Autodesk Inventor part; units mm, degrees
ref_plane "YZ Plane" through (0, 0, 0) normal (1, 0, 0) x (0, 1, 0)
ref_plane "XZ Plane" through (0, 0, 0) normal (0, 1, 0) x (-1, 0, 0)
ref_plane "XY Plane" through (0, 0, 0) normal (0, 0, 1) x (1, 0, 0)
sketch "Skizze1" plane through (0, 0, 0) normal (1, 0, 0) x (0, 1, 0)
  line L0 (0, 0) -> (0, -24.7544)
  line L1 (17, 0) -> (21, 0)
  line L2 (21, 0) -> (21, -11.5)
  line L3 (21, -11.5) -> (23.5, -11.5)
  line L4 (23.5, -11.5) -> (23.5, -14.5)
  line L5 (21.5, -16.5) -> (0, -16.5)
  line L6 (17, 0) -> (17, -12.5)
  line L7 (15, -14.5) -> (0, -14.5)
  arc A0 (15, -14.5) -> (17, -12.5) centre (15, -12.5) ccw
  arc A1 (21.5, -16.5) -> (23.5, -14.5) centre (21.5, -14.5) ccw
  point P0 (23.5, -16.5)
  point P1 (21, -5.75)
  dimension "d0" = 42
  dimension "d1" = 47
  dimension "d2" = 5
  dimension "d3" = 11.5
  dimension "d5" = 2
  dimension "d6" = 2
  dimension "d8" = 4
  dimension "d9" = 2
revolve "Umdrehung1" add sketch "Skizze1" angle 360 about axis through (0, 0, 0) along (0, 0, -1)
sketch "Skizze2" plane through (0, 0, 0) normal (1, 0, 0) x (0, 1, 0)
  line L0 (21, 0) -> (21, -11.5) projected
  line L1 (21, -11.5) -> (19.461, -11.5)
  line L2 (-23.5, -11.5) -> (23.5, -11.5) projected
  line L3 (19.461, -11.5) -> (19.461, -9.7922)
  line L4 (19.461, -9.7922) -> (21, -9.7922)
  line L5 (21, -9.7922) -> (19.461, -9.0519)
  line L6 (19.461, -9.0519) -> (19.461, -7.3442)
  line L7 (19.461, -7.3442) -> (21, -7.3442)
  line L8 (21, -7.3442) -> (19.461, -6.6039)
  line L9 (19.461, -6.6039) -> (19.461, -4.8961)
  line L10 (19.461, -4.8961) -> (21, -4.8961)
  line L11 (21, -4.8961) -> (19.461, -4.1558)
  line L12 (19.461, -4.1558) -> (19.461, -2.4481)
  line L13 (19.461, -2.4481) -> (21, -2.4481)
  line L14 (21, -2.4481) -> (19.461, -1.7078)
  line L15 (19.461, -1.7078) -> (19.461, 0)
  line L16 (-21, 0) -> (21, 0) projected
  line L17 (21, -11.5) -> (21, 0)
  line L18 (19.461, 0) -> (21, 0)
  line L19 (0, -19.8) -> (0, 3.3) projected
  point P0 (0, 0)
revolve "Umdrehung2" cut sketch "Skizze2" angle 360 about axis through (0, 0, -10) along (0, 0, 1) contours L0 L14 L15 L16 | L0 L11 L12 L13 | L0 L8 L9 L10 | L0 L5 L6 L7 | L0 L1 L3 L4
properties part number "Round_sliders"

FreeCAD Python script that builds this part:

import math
import FreeCAD as App
import Part
import Sketcher

doc = App.newDocument("Part")
body = doc.addObject("PartDesign::Body", "Body")

# Sketch on YZ plane
sketch1 = body.newObject("Sketcher::SketchObject", "Sketch")
sketch1.AttachmentSupport = (doc.getObject("YZ_Plane"), [""])
sketch1.MapMode = "FlatFace"
sketch1.addGeometry([
    Part.LineSegment(App.Vector(15, -14.5, 0), App.Vector(0, -14.5, 0)),  # 0
    Part.LineSegment(App.Vector(0, -14.5, 0), App.Vector(0, -16.5, 0)),  # 1
    Part.LineSegment(App.Vector(0, -16.5, 0), App.Vector(21.5, -16.5, 0)),  # 2
    Part.ArcOfCircle(Part.Circle(App.Vector(21.5, -14.5, 0), App.Vector(0, 0, 1), 2), math.radians(-90), math.radians(0)),  # 3
    Part.LineSegment(App.Vector(23.5, -14.5, 0), App.Vector(23.5, -11.5, 0)),  # 4
    Part.LineSegment(App.Vector(23.5, -11.5, 0), App.Vector(21, -11.5, 0)),  # 5
    Part.LineSegment(App.Vector(21, -11.5, 0), App.Vector(21, 0, 0)),  # 6
    Part.LineSegment(App.Vector(21, 0, 0), App.Vector(17, 0, 0)),  # 7
    Part.LineSegment(App.Vector(17, 0, 0), App.Vector(17, -12.5, 0)),  # 8
    Part.ArcOfCircle(Part.Circle(App.Vector(15, -12.5, 0), App.Vector(0, 0, 1), 2), math.radians(-90), math.radians(0)),  # 9
], False)
sketch1.addConstraint([
    Sketcher.Constraint("Coincident", 0, 2, 1, 1),
    Sketcher.Constraint("Coincident", 1, 2, 2, 1),
    Sketcher.Constraint("Tangent", 2, 2, 3, 1),
    Sketcher.Constraint("Tangent", 3, 2, 4, 1),
    Sketcher.Constraint("Coincident", 4, 2, 5, 1),
    Sketcher.Constraint("Coincident", 5, 2, 6, 1),
    Sketcher.Constraint("Coincident", 6, 2, 7, 1),
    Sketcher.Constraint("Coincident", 7, 2, 8, 1),
    Sketcher.Constraint("Tangent", 8, 2, 9, 2),
    Sketcher.Constraint("Tangent", 9, 1, 0, 1),
    Sketcher.Constraint("Horizontal", 0),
    Sketcher.Constraint("Vertical", 1),
    Sketcher.Constraint("Horizontal", 2),
    Sketcher.Constraint("Vertical", 4),
    Sketcher.Constraint("Horizontal", 5),
    Sketcher.Constraint("Vertical", 6),
    Sketcher.Constraint("Horizontal", 7),
    Sketcher.Constraint("Vertical", 8),
    Sketcher.Constraint("Equal", 3, 9),
    Sketcher.Constraint("PointOnObject", 0, 2, -2),
    Sketcher.Constraint("PointOnObject", 6, 2, -1),
    Sketcher.Constraint("Horizontal", 3, 3, 0, 2),
    Sketcher.Constraint("Radius", 3, 2.0),
    Sketcher.Constraint("DistanceX", 7, 2, 7, 1, 4.0),
    Sketcher.Constraint("DistanceY", 6, 1, 6, 2, 11.5),
    Sketcher.Constraint("DistanceY", 2, 2, 4, 2, 5.0),
    Sketcher.Constraint("DistanceX", 0, 2, 0, 1, 15.0),
    Sketcher.Constraint("DistanceX", 2, 1, 2, 2, 21.5),
])
revolution = body.newObject("PartDesign::Revolution", "Revolution")
revolution.Profile = sketch1
revolution.ReferenceAxis = (sketch1, ["V_Axis"])
revolution.Angle = 360

# Sketch on YZ plane
sketch2 = body.newObject("Sketcher::SketchObject", "Sketch001")
sketch2.AttachmentSupport = (doc.getObject("YZ_Plane"), [""])
sketch2.MapMode = "FlatFace"
sketch2.addGeometry([
    Part.LineSegment(App.Vector(21, -2.4481, 0), App.Vector(21, 0, 0)),  # 0
    Part.LineSegment(App.Vector(21, 0, 0), App.Vector(19.461, 0, 0)),  # 1
    Part.LineSegment(App.Vector(19.461, 0, 0), App.Vector(19.461, -1.7078, 0)),  # 2
    Part.LineSegment(App.Vector(19.461, -1.7078, 0), App.Vector(21, -2.4481, 0)),  # 3
    Part.LineSegment(App.Vector(21, -4.8961, 0), App.Vector(21, -2.4481, 0)),  # 4
    Part.LineSegment(App.Vector(21, -2.4481, 0), App.Vector(19.461, -2.4481, 0)),  # 5
    Part.LineSegment(App.Vector(19.461, -2.4481, 0), App.Vector(19.461, -4.1558, 0)),  # 6
    Part.LineSegment(App.Vector(19.461, -4.1558, 0), App.Vector(21, -4.8961, 0)),  # 7
    Part.LineSegment(App.Vector(21, -7.3442, 0), App.Vector(21, -4.8961, 0)),  # 8
    Part.LineSegment(App.Vector(21, -4.8961, 0), App.Vector(19.461, -4.8961, 0)),  # 9
    Part.LineSegment(App.Vector(19.461, -4.8961, 0), App.Vector(19.461, -6.6039, 0)),  # 10
    Part.LineSegment(App.Vector(19.461, -6.6039, 0), App.Vector(21, -7.3442, 0)),  # 11
    Part.LineSegment(App.Vector(21, -9.7922, 0), App.Vector(21, -7.3442, 0)),  # 12
    Part.LineSegment(App.Vector(21, -7.3442, 0), App.Vector(19.461, -7.3442, 0)),  # 13
    Part.LineSegment(App.Vector(19.461, -7.3442, 0), App.Vector(19.461, -9.0519, 0)),  # 14
    Part.LineSegment(App.Vector(19.461, -9.0519, 0), App.Vector(21, -9.7922, 0)),  # 15
    Part.LineSegment(App.Vector(21, -11.5, 0), App.Vector(21, -9.7922, 0)),  # 16
    Part.LineSegment(App.Vector(21, -9.7922, 0), App.Vector(19.461, -9.7922, 0)),  # 17
    Part.LineSegment(App.Vector(19.461, -9.7922, 0), App.Vector(19.461, -11.5, 0)),  # 18
    Part.LineSegment(App.Vector(19.461, -11.5, 0), App.Vector(21, -11.5, 0)),  # 19
], False)
sketch2.addConstraint([
    Sketcher.Constraint("Coincident", 0, 2, 1, 1),
    Sketcher.Constraint("Coincident", 1, 2, 2, 1),
    Sketcher.Constraint("Coincident", 2, 2, 3, 1),
    Sketcher.Constraint("Coincident", 3, 2, 0, 1),
    Sketcher.Constraint("Coincident", 4, 2, 5, 1),
    Sketcher.Constraint("Coincident", 5, 2, 6, 1),
    Sketcher.Constraint("Coincident", 6, 2, 7, 1),
    Sketcher.Constraint("Coincident", 7, 2, 4, 1),
    Sketcher.Constraint("Coincident", 8, 2, 9, 1),
    Sketcher.Constraint("Coincident", 9, 2, 10, 1),
    Sketcher.Constraint("Coincident", 10, 2, 11, 1),
    Sketcher.Constraint("Coincident", 11, 2, 8, 1),
    Sketcher.Constraint("Coincident", 12, 2, 13, 1),
    Sketcher.Constraint("Coincident", 13, 2, 14, 1),
    Sketcher.Constraint("Coincident", 14, 2, 15, 1),
    Sketcher.Constraint("Coincident", 15, 2, 12, 1),
    Sketcher.Constraint("Coincident", 16, 2, 17, 1),
    Sketcher.Constraint("Coincident", 17, 2, 18, 1),
    Sketcher.Constraint("Coincident", 18, 2, 19, 1),
    Sketcher.Constraint("Coincident", 19, 2, 16, 1),
    Sketcher.Constraint("Vertical", 0),
    Sketcher.Constraint("Horizontal", 1),
    Sketcher.Constraint("Vertical", 2),
    Sketcher.Constraint("Vertical", 4),
    Sketcher.Constraint("Horizontal", 5),
    Sketcher.Constraint("Vertical", 6),
    Sketcher.Constraint("Vertical", 8),
    Sketcher.Constraint("Horizontal", 9),
    Sketcher.Constraint("Vertical", 10),
    Sketcher.Constraint("Vertical", 12),
    Sketcher.Constraint("Horizontal", 13),
    Sketcher.Constraint("Vertical", 14),
    Sketcher.Constraint("Vertical", 16),
    Sketcher.Constraint("Horizontal", 17),
    Sketcher.Constraint("Vertical", 18),
    Sketcher.Constraint("Horizontal", 19),
    Sketcher.Constraint("Coincident", 4, 2, 3, 2),
    Sketcher.Constraint("Coincident", 8, 2, 7, 2),
    Sketcher.Constraint("Coincident", 12, 2, 11, 2),
    Sketcher.Constraint("Coincident", 16, 2, 15, 2),
    Sketcher.Constraint("PointOnObject", 0, 2, -1),
    Sketcher.Constraint("Parallel", 3, 7),
    Sketcher.Constraint("Parallel", 7, 11),
    Sketcher.Constraint("Parallel", 11, 15),
    Sketcher.Constraint("Vertical", 2, 2, 5, 2),
    Sketcher.Constraint("Vertical", 6, 2, 9, 2),
    Sketcher.Constraint("Vertical", 10, 2, 13, 2),
    Sketcher.Constraint("Vertical", 14, 2, 17, 2),
    Sketcher.Constraint("Equal", 0, 4),
    Sketcher.Constraint("Equal", 4, 8),
    Sketcher.Constraint("Equal", 8, 12),
    Sketcher.Constraint("Equal", 14, 16),
    Sketcher.Constraint("DistanceX", -1, 1, 0, 2, 21.0),
    Sketcher.Constraint("DistanceY", 18, 2, -1, 1, 11.5),
    Sketcher.Constraint("DistanceX", 1, 2, 1, 1, 1.539),
    Sketcher.Constraint("DistanceY", 0, 1, 0, 2, 2.448),
])
groove = body.newObject("PartDesign::Groove", "Groove")
groove.Profile = sketch2
groove.ReferenceAxis = (sketch2, ["V_Axis"])
groove.Angle = 360

doc.recompute()
